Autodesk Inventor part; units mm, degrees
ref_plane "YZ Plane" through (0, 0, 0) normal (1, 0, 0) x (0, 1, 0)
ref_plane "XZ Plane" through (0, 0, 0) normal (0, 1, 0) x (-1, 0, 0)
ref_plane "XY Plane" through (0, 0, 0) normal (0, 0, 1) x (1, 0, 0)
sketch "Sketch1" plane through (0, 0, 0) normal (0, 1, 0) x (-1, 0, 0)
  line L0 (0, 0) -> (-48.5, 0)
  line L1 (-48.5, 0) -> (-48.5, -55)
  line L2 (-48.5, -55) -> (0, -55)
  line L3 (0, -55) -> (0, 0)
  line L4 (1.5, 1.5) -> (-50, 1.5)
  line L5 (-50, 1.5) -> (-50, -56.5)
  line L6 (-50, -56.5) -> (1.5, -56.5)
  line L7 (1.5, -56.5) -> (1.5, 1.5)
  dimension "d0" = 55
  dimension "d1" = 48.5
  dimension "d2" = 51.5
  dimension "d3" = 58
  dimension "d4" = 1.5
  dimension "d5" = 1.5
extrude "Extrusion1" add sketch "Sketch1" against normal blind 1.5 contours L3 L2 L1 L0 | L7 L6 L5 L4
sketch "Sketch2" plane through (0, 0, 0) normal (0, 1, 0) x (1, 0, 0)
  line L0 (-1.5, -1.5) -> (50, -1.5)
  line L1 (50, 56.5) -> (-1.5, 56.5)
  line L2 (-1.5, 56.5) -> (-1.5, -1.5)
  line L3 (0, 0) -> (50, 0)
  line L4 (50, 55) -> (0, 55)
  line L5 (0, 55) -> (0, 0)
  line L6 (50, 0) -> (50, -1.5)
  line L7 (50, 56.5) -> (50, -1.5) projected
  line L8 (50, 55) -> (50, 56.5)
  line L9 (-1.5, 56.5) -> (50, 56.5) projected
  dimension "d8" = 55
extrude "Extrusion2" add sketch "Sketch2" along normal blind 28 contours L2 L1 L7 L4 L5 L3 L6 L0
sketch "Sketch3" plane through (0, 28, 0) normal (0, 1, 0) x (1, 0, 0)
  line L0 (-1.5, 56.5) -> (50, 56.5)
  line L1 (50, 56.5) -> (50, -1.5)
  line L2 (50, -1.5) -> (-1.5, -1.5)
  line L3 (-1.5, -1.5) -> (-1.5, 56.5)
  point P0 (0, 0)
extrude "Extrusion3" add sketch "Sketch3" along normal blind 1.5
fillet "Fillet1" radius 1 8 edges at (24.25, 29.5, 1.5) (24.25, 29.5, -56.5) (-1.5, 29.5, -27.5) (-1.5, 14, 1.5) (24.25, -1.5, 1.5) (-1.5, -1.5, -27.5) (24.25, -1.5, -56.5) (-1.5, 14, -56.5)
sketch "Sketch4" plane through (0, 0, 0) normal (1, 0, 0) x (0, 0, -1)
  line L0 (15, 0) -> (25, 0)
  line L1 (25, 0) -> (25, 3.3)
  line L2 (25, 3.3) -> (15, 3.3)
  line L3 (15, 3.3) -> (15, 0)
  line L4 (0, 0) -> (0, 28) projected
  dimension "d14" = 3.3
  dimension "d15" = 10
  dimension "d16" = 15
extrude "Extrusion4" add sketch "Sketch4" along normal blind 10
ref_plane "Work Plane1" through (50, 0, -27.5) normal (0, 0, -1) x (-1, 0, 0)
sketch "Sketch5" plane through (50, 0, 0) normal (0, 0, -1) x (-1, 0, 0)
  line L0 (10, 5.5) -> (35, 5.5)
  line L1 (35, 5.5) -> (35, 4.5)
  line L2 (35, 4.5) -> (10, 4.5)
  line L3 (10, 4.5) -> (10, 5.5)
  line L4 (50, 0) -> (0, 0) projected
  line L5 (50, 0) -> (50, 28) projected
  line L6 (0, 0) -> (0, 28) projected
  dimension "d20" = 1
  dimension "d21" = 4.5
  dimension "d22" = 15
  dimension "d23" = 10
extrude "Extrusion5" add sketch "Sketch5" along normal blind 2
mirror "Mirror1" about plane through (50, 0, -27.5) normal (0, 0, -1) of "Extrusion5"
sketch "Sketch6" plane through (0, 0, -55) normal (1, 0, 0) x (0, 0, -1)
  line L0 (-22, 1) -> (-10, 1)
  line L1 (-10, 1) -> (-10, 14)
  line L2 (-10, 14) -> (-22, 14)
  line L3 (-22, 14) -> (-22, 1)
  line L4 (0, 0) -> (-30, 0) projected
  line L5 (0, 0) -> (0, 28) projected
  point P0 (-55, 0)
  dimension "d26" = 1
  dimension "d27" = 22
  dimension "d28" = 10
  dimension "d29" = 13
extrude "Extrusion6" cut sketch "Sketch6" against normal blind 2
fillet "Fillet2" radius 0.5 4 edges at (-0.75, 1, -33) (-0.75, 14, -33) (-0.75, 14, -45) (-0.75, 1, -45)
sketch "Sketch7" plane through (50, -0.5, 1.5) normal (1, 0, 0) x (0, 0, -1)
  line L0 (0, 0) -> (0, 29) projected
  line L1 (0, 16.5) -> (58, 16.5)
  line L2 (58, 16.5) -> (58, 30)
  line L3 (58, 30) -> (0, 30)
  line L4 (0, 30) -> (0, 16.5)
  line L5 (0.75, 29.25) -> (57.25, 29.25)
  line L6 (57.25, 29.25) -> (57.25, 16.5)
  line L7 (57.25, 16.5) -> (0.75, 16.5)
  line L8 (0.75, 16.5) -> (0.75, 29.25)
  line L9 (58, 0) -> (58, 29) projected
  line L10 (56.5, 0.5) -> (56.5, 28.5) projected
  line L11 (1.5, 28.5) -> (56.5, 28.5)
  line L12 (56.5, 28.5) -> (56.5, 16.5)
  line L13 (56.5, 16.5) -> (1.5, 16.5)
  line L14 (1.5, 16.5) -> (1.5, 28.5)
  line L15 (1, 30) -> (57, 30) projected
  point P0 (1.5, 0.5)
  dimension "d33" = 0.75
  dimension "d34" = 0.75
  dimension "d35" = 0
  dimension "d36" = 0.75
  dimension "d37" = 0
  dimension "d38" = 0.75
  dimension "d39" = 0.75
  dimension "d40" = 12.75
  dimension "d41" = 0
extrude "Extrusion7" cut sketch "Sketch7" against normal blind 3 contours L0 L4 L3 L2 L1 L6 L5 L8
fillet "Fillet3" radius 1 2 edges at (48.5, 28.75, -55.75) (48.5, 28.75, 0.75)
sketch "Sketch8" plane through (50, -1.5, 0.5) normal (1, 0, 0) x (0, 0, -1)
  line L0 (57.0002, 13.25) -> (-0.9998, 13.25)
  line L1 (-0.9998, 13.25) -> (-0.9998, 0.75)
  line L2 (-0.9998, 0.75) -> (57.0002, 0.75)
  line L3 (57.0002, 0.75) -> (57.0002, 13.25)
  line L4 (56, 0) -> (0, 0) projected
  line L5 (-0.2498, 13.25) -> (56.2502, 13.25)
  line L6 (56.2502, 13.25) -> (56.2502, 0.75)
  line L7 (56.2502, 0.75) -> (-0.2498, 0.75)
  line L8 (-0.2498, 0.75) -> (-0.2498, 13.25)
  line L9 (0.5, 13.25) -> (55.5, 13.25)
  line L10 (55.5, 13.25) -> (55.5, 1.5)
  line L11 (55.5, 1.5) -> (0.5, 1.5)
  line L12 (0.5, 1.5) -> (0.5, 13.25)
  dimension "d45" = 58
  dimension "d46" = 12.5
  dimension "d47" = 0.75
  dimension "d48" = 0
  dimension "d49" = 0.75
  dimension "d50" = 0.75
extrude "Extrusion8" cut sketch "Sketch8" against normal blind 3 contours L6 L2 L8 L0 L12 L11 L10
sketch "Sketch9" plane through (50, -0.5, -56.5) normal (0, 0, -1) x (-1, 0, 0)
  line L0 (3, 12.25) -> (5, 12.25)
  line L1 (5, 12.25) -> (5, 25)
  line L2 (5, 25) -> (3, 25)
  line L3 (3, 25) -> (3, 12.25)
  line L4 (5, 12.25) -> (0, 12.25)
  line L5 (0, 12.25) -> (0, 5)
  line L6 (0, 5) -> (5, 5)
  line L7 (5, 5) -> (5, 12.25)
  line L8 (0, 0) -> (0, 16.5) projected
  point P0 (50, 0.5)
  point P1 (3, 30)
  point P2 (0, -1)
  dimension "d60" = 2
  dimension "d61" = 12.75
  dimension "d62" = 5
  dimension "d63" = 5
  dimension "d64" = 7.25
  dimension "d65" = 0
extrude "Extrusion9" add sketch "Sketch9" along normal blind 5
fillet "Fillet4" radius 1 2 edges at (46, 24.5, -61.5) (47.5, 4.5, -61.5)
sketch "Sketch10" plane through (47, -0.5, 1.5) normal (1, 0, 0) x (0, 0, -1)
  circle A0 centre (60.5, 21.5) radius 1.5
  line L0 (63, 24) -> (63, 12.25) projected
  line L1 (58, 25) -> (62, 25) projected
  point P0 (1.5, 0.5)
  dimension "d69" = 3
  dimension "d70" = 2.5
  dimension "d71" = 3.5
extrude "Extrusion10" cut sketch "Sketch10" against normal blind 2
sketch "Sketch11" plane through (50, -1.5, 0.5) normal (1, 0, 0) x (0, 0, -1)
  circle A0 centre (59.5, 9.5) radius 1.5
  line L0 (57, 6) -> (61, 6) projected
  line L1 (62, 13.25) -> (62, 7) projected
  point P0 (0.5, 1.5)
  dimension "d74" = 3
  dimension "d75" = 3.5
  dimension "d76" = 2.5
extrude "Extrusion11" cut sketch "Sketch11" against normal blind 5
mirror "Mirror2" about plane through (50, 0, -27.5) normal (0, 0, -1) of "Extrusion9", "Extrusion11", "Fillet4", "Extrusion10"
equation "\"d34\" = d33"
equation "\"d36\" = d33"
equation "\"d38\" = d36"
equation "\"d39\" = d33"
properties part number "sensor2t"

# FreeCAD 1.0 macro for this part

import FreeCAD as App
import Part
import Sketcher

V = App.Vector
Q = App.Units.Quantity


def edges_at(feature, points):
    """Names of the edges that pass closest to the given points."""
    edges = feature.Shape.Edges
    near = lambda p: min(range(len(edges)), key=lambda i: edges[i].distToShape(Part.Vertex(*p))[0])
    return sorted({f"Edge{near(p) + 1}" for p in points})

doc = App.newDocument("Part")
params = doc.addObject("Spreadsheet::Sheet", "Params")
for row, (alias, value) in enumerate([
    ("sketch1_height", "58 mm"),
    ("sketch1_width", "51.5 mm"),
    ("pad1_length", "1.5 mm"),
    ("sketch2_height", "55 mm"),
    ("sketch2_width", "50 mm"),
    ("sketch2_height2", "58 mm"),
    ("sketch2_width2", "51.5 mm"),
    ("pad2_length", "28 mm"),
    ("sketch3_height", "58 mm"),
    ("sketch3_width", "51.5 mm"),
    ("pad3_length", "1.5 mm"),
    ("fillet_radius", "1 mm"),
    ("sketch4_height", "10 mm"),
    ("sketch4_width", "3.3 mm"),
    ("pad4_length", "10 mm"),
    ("sketch5_height", "1 mm"),
    ("sketch5_width", "25 mm"),
    ("pad5_length", "2 mm"),
    ("sketch6_width", "13 mm"),
    ("sketch6_height", "12 mm"),
    ("pocket1_length", "2 mm"),
    ("fillet2_radius", "0.5 mm"),
    ("sketch7_width", "12.75 mm"),
    ("sketch7_height", "0.75 mm"),
    ("sketch7_height2", "58 mm"),
    ("pocket2_length", "3 mm"),
    ("fillet3_radius", "1 mm"),
    ("sketch8_width", "12.5 mm"),
    ("sketch8_height", "55 mm"),
    ("pocket3_length", "3 mm"),
    ("sketch9_width", "5 mm"),
    ("sketch9_width2", "2 mm"),
    ("sketch9_height", "12.75 mm"),
    ("sketch9_height2", "7.25 mm"),
    ("pad6_length", "5 mm"),
    ("fillet4_radius", "1 mm"),
    ("sketch10_diameter", "3 mm"),
    ("pocket4_length", "2 mm"),
    ("sketch11_diameter", "3 mm"),
    ("pocket5_length", "5 mm"),
], start=1):
    params.set(f"A{row}", alias)
    params.set(f"B{row}", "=" + value)
    params.setAlias(f"B{row}", alias)

body = doc.addObject("PartDesign::Body", "Body")

sketch1 = body.newObject("Sketcher::SketchObject", "Sketch")
sketch1.AttachmentSupport = (doc.getObject("XZ_Plane"), [""])
sketch1.MapMode = "FlatFace"
sketch1.addGeometry([
    Part.LineSegment(V(-2, -56, 0), V(-2, 2, 0)),
    Part.LineSegment(V(-2, 2, 0), V(50, 2, 0)),
    Part.LineSegment(V(50, 2, 0), V(50, -56, 0)),
    Part.LineSegment(V(50, -56, 0), V(-2, -56, 0)),
], False)
sketch1.addConstraint([
    Sketcher.Constraint("Coincident", 0, 2, 1, 1),
    Sketcher.Constraint("Coincident", 1, 2, 2, 1),
    Sketcher.Constraint("Coincident", 2, 2, 3, 1),
    Sketcher.Constraint("Coincident", 3, 2, 0, 1),
    Sketcher.Constraint("Vertical", 0),
    Sketcher.Constraint("Horizontal", 1),
    Sketcher.Constraint("Vertical", 2),
    Sketcher.Constraint("Horizontal", 3),
    Sketcher.Constraint("DistanceY", 0, 1, 0, 2, Q("58 mm")),
    Sketcher.Constraint("DistanceX", 1, 1, 1, 2, Q("51.5 mm")),
    Sketcher.Constraint("DistanceX", 0, 2, -1, 1, Q("1.5 mm")),
    Sketcher.Constraint("DistanceY", -1, 1, 0, 2, Q("1.5 mm")),
])
sketch1.setExpression("Constraints[8]", "Params.sketch1_height")
sketch1.setExpression("Constraints[9]", "Params.sketch1_width")
pad1 = body.newObject("PartDesign::Pad", "Pad")
pad1.Profile = sketch1
pad1.setExpression("Length", "Params.pad1_length")

sketch2 = body.newObject("Sketcher::SketchObject", "Sketch001")
sketch2.AttachmentSupport = (doc.getObject("XZ_Plane"), [""])
sketch2.MapMode = "FlatFace"
sketch2.addGeometry([
    Part.LineSegment(V(-1.5, -56.5, 0), V(-1.5, 1.5, 0)),
    Part.LineSegment(V(-1.5, 1.5, 0), V(50, 1.5, 0)),
    Part.LineSegment(V(50, 1.5, 0), V(50, 0, 0)),
    Part.LineSegment(V(50, 0, 0), V(0, 0, 0)),
    Part.LineSegment(V(0, 0, 0), V(0, -55, 0)),
    Part.LineSegment(V(0, -55, 0), V(50, -55, 0)),
    Part.LineSegment(V(50, -55, 0), V(50, -56.5, 0)),
    Part.LineSegment(V(50, -56.5, 0), V(-1.5, -56.5, 0)),
], False)
sketch2.addConstraint([
    Sketcher.Constraint("Coincident", 0, 2, 1, 1),
    Sketcher.Constraint("Coincident", 1, 2, 2, 1),
    Sketcher.Constraint("Coincident", 2, 2, 3, 1),
    Sketcher.Constraint("Coincident", 3, 2, 4, 1),
    Sketcher.Constraint("Coincident", 4, 2, 5, 1),
    Sketcher.Constraint("Coincident", 5, 2, 6, 1),
    Sketcher.Constraint("Coincident", 6, 2, 7, 1),
    Sketcher.Constraint("Coincident", 7, 2, 0, 1),
    Sketcher.Constraint("Vertical", 0),
    Sketcher.Constraint("Horizontal", 1),
    Sketcher.Constraint("Vertical", 2),
    Sketcher.Constraint("Horizontal", 3),
    Sketcher.Constraint("Vertical", 4),
    Sketcher.Constraint("Horizontal", 5),
    Sketcher.Constraint("Vertical", 6),
    Sketcher.Constraint("Horizontal", 7),
    Sketcher.Constraint("Coincident", 3, 2, -1, 1),
    Sketcher.Constraint("Vertical", 2, 2, 5, 2),
    Sketcher.Constraint("Equal", 2, 6),
    Sketcher.Constraint("DistanceY", 4, 2, 4, 1, Q("55 mm")),
    Sketcher.Constraint("DistanceX", 3, 2, 3, 1, Q("50 mm")),
    Sketcher.Constraint("DistanceY", 0, 1, 0, 2, Q("58 mm")),
    Sketcher.Constraint("DistanceX", 1, 1, 1, 2, Q("51.5 mm")),
])
sketch2.setExpression("Constraints[19]", "Params.sketch2_height")
sketch2.setExpression("Constraints[20]", "Params.sketch2_width")
sketch2.setExpression("Constraints[21]", "Params.sketch2_height2")
sketch2.setExpression("Constraints[22]", "Params.sketch2_width2")
pad2 = body.newObject("PartDesign::Pad", "Pad001")
pad2.Profile = sketch2
pad2.setExpression("Length", "Params.pad2_length")
pad2.Reversed = True

sketch3 = body.newObject("Sketcher::SketchObject", "Sketch002")
sketch3.AttachmentSupport = (doc.getObject("XZ_Plane"), [""])
sketch3.MapMode = "FlatFace"
sketch3.AttachmentOffset = App.Placement(V(0, 0, -28), App.Rotation())
sketch3.addGeometry([
    Part.LineSegment(V(50, -56, 0), V(-2, -56, 0)),
    Part.LineSegment(V(-2, -56, 0), V(-2, 2, 0)),
    Part.LineSegment(V(-2, 2, 0), V(50, 2, 0)),
    Part.LineSegment(V(50, 2, 0), V(50, -56, 0)),
], False)
sketch3.addConstraint([
    Sketcher.Constraint("Coincident", 0, 2, 1, 1),
    Sketcher.Constraint("Coincident", 1, 2, 2, 1),
    Sketcher.Constraint("Coincident", 2, 2, 3, 1),
    Sketcher.Constraint("Coincident", 3, 2, 0, 1),
    Sketcher.Constraint("Horizontal", 0),
    Sketcher.Constraint("Vertical", 1),
    Sketcher.Constraint("Horizontal", 2),
    Sketcher.Constraint("Vertical", 3),
    Sketcher.Constraint("DistanceY", 1, 1, 1, 2, Q("58 mm")),
    Sketcher.Constraint("DistanceX", 0, 2, 0, 1, Q("51.5 mm")),
    Sketcher.Constraint("DistanceX", -1, 1, 2, 2, Q("50 mm")),
    Sketcher.Constraint("DistanceY", 0, 2, -1, 1, Q("56.5 mm")),
])
sketch3.setExpression("Constraints[8]", "Params.sketch3_height")
sketch3.setExpression("Constraints[9]", "Params.sketch3_width")
pad3 = body.newObject("PartDesign::Pad", "Pad002")
pad3.Profile = sketch3
pad3.setExpression("Length", "Params.pad3_length")
pad3.Reversed = True
doc.recompute()

fillet = body.newObject("PartDesign::Fillet", "Fillet")
fillet.Base = (pad3, edges_at(pad3, [
    (24.25, 29.5, 1.5),
    (24.25, 29.5, -56.5),
    (-1.5, 29.5, -27.5),
    (-1.5, 14, 1.5),
    (24.25, -1.5, 1.5),
    (-1.5, -1.5, -27.5),
    (24.25, -1.5, -56.5),
    (-1.5, 14, -56.5),
]))
fillet.setExpression("Radius", "Params.fillet_radius")

sketch4 = body.newObject("Sketcher::SketchObject", "Sketch003")
sketch4.AttachmentSupport = (doc.getObject("YZ_Plane"), [""])
sketch4.MapMode = "FlatFace"
sketch4.addGeometry([
    Part.LineSegment(V(3.3, -15, 0), V(0, -15, 0)),
    Part.LineSegment(V(0, -15, 0), V(0, -25, 0)),
    Part.LineSegment(V(0, -25, 0), V(3.3, -25, 0)),
    Part.LineSegment(V(3.3, -25, 0), V(3.3, -15, 0)),
], False)
sketch4.addConstraint([
    Sketcher.Constraint("Coincident", 0, 2, 1, 1),
    Sketcher.Constraint("Coincident", 1, 2, 2, 1),
    Sketcher.Constraint("Coincident", 2, 2, 3, 1),
    Sketcher.Constraint("Coincident", 3, 2, 0, 1),
    Sketcher.Constraint("Horizontal", 0),
    Sketcher.Constraint("Vertical", 1),
    Sketcher.Constraint("Horizontal", 2),
    Sketcher.Constraint("Vertical", 3),
    Sketcher.Constraint("PointOnObject", 0, 2, -2),
    Sketcher.Constraint("DistanceY", 1, 2, 1, 1, Q("10 mm")),
    Sketcher.Constraint("DistanceX", 0, 2, 0, 1, Q("3.3 mm")),
    Sketcher.Constraint("DistanceY", 0, 2, -1, 1, Q("15 mm")),
])
sketch4.setExpression("Constraints[9]", "Params.sketch4_height")
sketch4.setExpression("Constraints[10]", "Params.sketch4_width")
pad4 = body.newObject("PartDesign::Pad", "Pad003")
pad4.Profile = sketch4
pad4.setExpression("Length", "Params.pad4_length")

sketch5 = body.newObject("Sketcher::SketchObject", "Sketch004")
sketch5.AttachmentSupport = (doc.getObject("XY_Plane"), [""])
sketch5.MapMode = "FlatFace"
sketch5.addGeometry([
    Part.LineSegment(V(15, 5.5, 0), V(40, 5.5, 0)),
    Part.LineSegment(V(40, 5.5, 0), V(40, 4.5, 0)),
    Part.LineSegment(V(40, 4.5, 0), V(15, 4.5, 0)),
    Part.LineSegment(V(15, 4.5, 0), V(15, 5.5, 0)),
], False)
sketch5.addConstraint([
    Sketcher.Constraint("Coincident", 0, 2, 1, 1),
    Sketcher.Constraint("Coincident", 1, 2, 2, 1),
    Sketcher.Constraint("Coincident", 2, 2, 3, 1),
    Sketcher.Constraint("Coincident", 3, 2, 0, 1),
    Sketcher.Constraint("Horizontal", 0),
    Sketcher.Constraint("Vertical", 1),
    Sketcher.Constraint("Horizontal", 2),
    Sketcher.Constraint("Vertical", 3),
    Sketcher.Constraint("DistanceY", 1, 2, 1, 1, Q("1 mm")),
    Sketcher.Constraint("DistanceX", -1, 1, 2, 2, Q("15 mm")),
    Sketcher.Constraint("DistanceY", -1, 1, 1, 2, Q("4.5 mm")),
    Sketcher.Constraint("DistanceX", 0, 1, 0, 2, Q("25 mm")),
])
sketch5.setExpression("Constraints[8]", "Params.sketch5_height")
sketch5.setExpression("Constraints[11]", "Params.sketch5_width")
pad5 = body.newObject("PartDesign::Pad", "Pad004")
pad5.Profile = sketch5
pad5.setExpression("Length", "Params.pad5_length")
pad5.Reversed = True
doc.recompute()

datumplane = body.newObject("PartDesign::Plane", "DatumPlane")
datumplane.AttachmentSupport = (doc.getObject("XY_Plane"), [""])
datumplane.MapMode = "FlatFace"
datumplane.AttachmentOffset = App.Placement(V(0, 0, -27.5), App.Rotation())
mirrored = body.newObject("PartDesign::Mirrored", "Mirrored")
mirrored.Originals = [pad5]
mirrored.MirrorPlane = (datumplane, [""])
body.Tip = mirrored

sketch6 = body.newObject("Sketcher::SketchObject", "Sketch005")
sketch6.AttachmentSupport = (doc.getObject("YZ_Plane"), [""])
sketch6.MapMode = "FlatFace"
sketch6.addGeometry([
    Part.LineSegment(V(14, -33, 0), V(1, -33, 0)),
    Part.LineSegment(V(1, -33, 0), V(1, -45, 0)),
    Part.LineSegment(V(1, -45, 0), V(14, -45, 0)),
    Part.LineSegment(V(14, -45, 0), V(14, -33, 0)),
], False)
sketch6.addConstraint([
    Sketcher.Constraint("Coincident", 0, 2, 1, 1),
    Sketcher.Constraint("Coincident", 1, 2, 2, 1),
    Sketcher.Constraint("Coincident", 2, 2, 3, 1),
    Sketcher.Constraint("Coincident", 3, 2, 0, 1),
    Sketcher.Constraint("Horizontal", 0),
    Sketcher.Constraint("Vertical", 1),
    Sketcher.Constraint("Horizontal", 2),
    Sketcher.Constraint("Vertical", 3),
    Sketcher.Constraint("DistanceX", 0, 2, 0, 1, Q("13 mm")),
    Sketcher.Constraint("DistanceX", -1, 1, 0, 2, Q("1 mm")),
    Sketcher.Constraint("DistanceY", 1, 2, 1, 1, Q("12 mm")),
    Sketcher.Constraint("DistanceY", 0, 2, -1, 1, Q("33 mm")),
])
sketch6.setExpression("Constraints[8]", "Params.sketch6_width")
sketch6.setExpression("Constraints[10]", "Params.sketch6_height")
pocket1 = body.newObject("PartDesign::Pocket", "Pocket")
pocket1.Profile = sketch6
pocket1.setExpression("Length", "Params.pocket1_length")
doc.recompute()

fillet2 = body.newObject("PartDesign::Fillet", "Fillet001")
fillet2.Base = (pocket1, edges_at(pocket1, [
    (-0.75, 1, -33),
    (-0.75, 14, -33),
    (-0.75, 14, -45),
    (-0.75, 1, -45),
]))
fillet2.setExpression("Radius", "Params.fillet2_radius")

sketch7 = body.newObject("Sketcher::SketchObject", "Sketch006")
sketch7.AttachmentSupport = (doc.getObject("YZ_Plane"), [""])
sketch7.MapMode = "FlatFace"
sketch7.AttachmentOffset = App.Placement(V(0, 0, 50), App.Rotation())
sketch7.addGeometry([
    Part.LineSegment(V(29.5, 1.5, 0), V(16, 1.5, 0)),
    Part.LineSegment(V(16, 1.5, 0), V(16, 0.8, 0)),
    Part.LineSegment(V(16, 0.8, 0), V(28.8, 0.8, 0)),
    Part.LineSegment(V(28.8, 0.8, 0), V(28.8, -55.8, 0)),
    Part.LineSegment(V(28.8, -55.8, 0), V(16, -55.8, 0)),
    Part.LineSegment(V(16, -55.8, 0), V(16, -56.5, 0)),
    Part.LineSegment(V(16, -56.5, 0), V(29.5, -56.5, 0)),
    Part.LineSegment(V(29.5, -56.5, 0), V(29.5, 1.5, 0)),
], False)
sketch7.addConstraint([
    Sketcher.Constraint("Coincident", 0, 2, 1, 1),
    Sketcher.Constraint("Coincident", 1, 2, 2, 1),
    Sketcher.Constraint("Coincident", 2, 2, 3, 1),
    Sketcher.Constraint("Coincident", 3, 2, 4, 1),
    Sketcher.Constraint("Coincident", 4, 2, 5, 1),
    Sketcher.Constraint("Coincident", 5, 2, 6, 1),
    Sketcher.Constraint("Coincident", 6, 2, 7, 1),
    Sketcher.Constraint("Coincident", 7, 2, 0, 1),
    Sketcher.Constraint("Horizontal", 0),
    Sketcher.Constraint("Vertical", 1),
    Sketcher.Constraint("Horizontal", 2),
    Sketcher.Constraint("Vertical", 3),
    Sketcher.Constraint("Horizontal", 4),
    Sketcher.Constraint("Vertical", 5),
    Sketcher.Constraint("Horizontal", 6),
    Sketcher.Constraint("Vertical", 7),
    Sketcher.Constraint("Vertical", 1, 2, 4, 2),
    Sketcher.Constraint("Equal", 1, 5),
    Sketcher.Constraint("DistanceX", 2, 1, 2, 2, Q("12.75 mm")),
    Sketcher.Constraint("DistanceY", 1, 2, 1, 1, Q("0.75 mm")),
    Sketcher.Constraint("DistanceY", 7, 1, 7, 2, Q("58 mm")),
    Sketcher.Constraint("DistanceY", -1, 1, 1, 2, Q("0.75 mm")),
    Sketcher.Constraint("DistanceX", 3, 2, 6, 2, Q("0.75 mm")),
    Sketcher.Constraint("DistanceX", -1, 1, 0, 2, Q("16 mm")),
])
sketch7.setExpression("Constraints[18]", "Params.sketch7_width")
sketch7.setExpression("Constraints[19]", "Params.sketch7_height")
sketch7.setExpression("Constraints[20]", "Params.sketch7_height2")
pocket2 = body.newObject("PartDesign::Pocket", "Pocket001")
pocket2.Profile = sketch7
pocket2.setExpression("Length", "Params.pocket2_length")
doc.recompute()

fillet3 = body.newObject("PartDesign::Fillet", "Fillet002")
fillet3.Base = (pocket2, edges_at(pocket2, [(48.5, 28.75, -55.75), (48.5, 28.75, 0.75)]))
fillet3.setExpression("Radius", "Params.fillet3_radius")

sketch8 = body.newObject("Sketcher::SketchObject", "Sketch007")
sketch8.AttachmentSupport = (doc.getObject("YZ_Plane"), [""])
sketch8.MapMode = "FlatFace"
sketch8.AttachmentOffset = App.Placement(V(0, 0, 50), App.Rotation())
sketch8.addGeometry([
    Part.LineSegment(V(-0.8, -55.8, 0), V(11.8, -55.8, 0)),
    Part.LineSegment(V(11.8, -55.8, 0), V(11.8, -55, 0)),
    Part.LineSegment(V(11.8, -55, 0), V(0, -55, 0)),
    Part.LineSegment(V(0, -55, 0), V(0, 0, 0)),
    Part.LineSegment(V(0, 0, 0), V(11.8, 0, 0)),
    Part.LineSegment(V(11.8, 0, 0), V(11.8, 0.7, 0)),
    Part.LineSegment(V(11.8, 0.7, 0), V(-0.8, 0.7, 0)),
    Part.LineSegment(V(-0.8, 0.7, 0), V(-0.8, -55.8, 0)),
], False)
sketch8.addConstraint([
    Sketcher.Constraint("Coincident", 0, 2, 1, 1),
    Sketcher.Constraint("Coincident", 1, 2, 2, 1),
    Sketcher.Constraint("Coincident", 2, 2, 3, 1),
    Sketcher.Constraint("Coincident", 3, 2, 4, 1),
    Sketcher.Constraint("Coincident", 4, 2, 5, 1),
    Sketcher.Constraint("Coincident", 5, 2, 6, 1),
    Sketcher.Constraint("Coincident", 6, 2, 7, 1),
    Sketcher.Constraint("Coincident", 7, 2, 0, 1),
    Sketcher.Constraint("Horizontal", 0),
    Sketcher.Constraint("Vertical", 1),
    Sketcher.Constraint("Horizontal", 2),
    Sketcher.Constraint("Vertical", 3),
    Sketcher.Constraint("Horizontal", 4),
    Sketcher.Constraint("Vertical", 5),
    Sketcher.Constraint("Horizontal", 6),
    Sketcher.Constraint("Vertical", 7),
    Sketcher.Constraint("Coincident", 3, 2, -1, 1),
    Sketcher.Constraint("Vertical", 1, 2, 4, 2),
    Sketcher.Constraint("DistanceX", 0, 1, 0, 2, Q("12.5 mm")),
    Sketcher.Constraint("DistanceY", 3, 1, 3, 2, Q("55 mm")),
    Sketcher.Constraint("DistanceX", 6, 2, -1, 1, Q("0.75 mm")),
    Sketcher.Constraint("DistanceY", 1, 1, 1, 2, Q("0.7502 mm")),
    Sketcher.Constraint("DistanceY", 5, 1, 5, 2, Q("0.7498 mm")),
])
sketch8.setExpression("Constraints[18]", "Params.sketch8_width")
sketch8.setExpression("Constraints[19]", "Params.sketch8_height")
pocket3 = body.newObject("PartDesign::Pocket", "Pocket002")
pocket3.Profile = sketch8
pocket3.setExpression("Length", "Params.pocket3_length")

sketch9 = body.newObject("Sketcher::SketchObject", "Sketch008")
sketch9.AttachmentSupport = (doc.getObject("XY_Plane"), [""])
sketch9.MapMode = "FlatFace"
sketch9.AttachmentOffset = App.Placement(V(0, 0, -56.5), App.Rotation())
sketch9.addGeometry([
    Part.LineSegment(V(47, 24.5, 0), V(47, 11.8, 0)),
    Part.LineSegment(V(47, 11.8, 0), V(50, 11.8, 0)),
    Part.LineSegment(V(50, 11.8, 0), V(50, 4.5, 0)),
    Part.LineSegment(V(50, 4.5, 0), V(45, 4.5, 0)),
    Part.LineSegment(V(45, 4.5, 0), V(45, 24.5, 0)),
    Part.LineSegment(V(45, 24.5, 0), V(47, 24.5, 0)),
], False)
sketch9.addConstraint([
    Sketcher.Constraint("Coincident", 0, 2, 1, 1),
    Sketcher.Constraint("Coincident", 1, 2, 2, 1),
    Sketcher.Constraint("Coincident", 2, 2, 3, 1),
    Sketcher.Constraint("Coincident", 3, 2, 4, 1),
    Sketcher.Constraint("Coincident", 4, 2, 5, 1),
    Sketcher.Constraint("Coincident", 5, 2, 0, 1),
    Sketcher.Constraint("Vertical", 0),
    Sketcher.Constraint("Horizontal", 1),
    Sketcher.Constraint("Vertical", 2),
    Sketcher.Constraint("Horizontal", 3),
    Sketcher.Constraint("Vertical", 4),
    Sketcher.Constraint("Horizontal", 5),
    Sketcher.Constraint("DistanceX", 3, 2, 3, 1, Q("5 mm")),
    Sketcher.Constraint("DistanceX", 5, 1, 5, 2, Q("2 mm")),
    Sketcher.Constraint("DistanceY", 0, 2, 0, 1, Q("12.75 mm")),
    Sketcher.Constraint("DistanceY", 2, 2, 2, 1, Q("7.25 mm")),
    Sketcher.Constraint("DistanceX", -1, 1, 0, 2, Q("47 mm")),
    Sketcher.Constraint("DistanceY", -1, 1, 2, 2, Q("4.5 mm")),
])
sketch9.setExpression("Constraints[12]", "Params.sketch9_width")
sketch9.setExpression("Constraints[13]", "Params.sketch9_width2")
sketch9.setExpression("Constraints[14]", "Params.sketch9_height")
sketch9.setExpression("Constraints[15]", "Params.sketch9_height2")
pad6 = body.newObject("PartDesign::Pad", "Pad005")
pad6.Profile = sketch9
pad6.setExpression("Length", "Params.pad6_length")
pad6.Reversed = True
doc.recompute()

fillet4 = body.newObject("PartDesign::Fillet", "Fillet003")
fillet4.Base = (pad6, edges_at(pad6, [(46, 24.5, -61.5), (47.5, 4.5, -61.5)]))
fillet4.setExpression("Radius", "Params.fillet4_radius")

sketch10 = body.newObject("Sketcher::SketchObject", "Sketch009")
sketch10.AttachmentSupport = (doc.getObject("YZ_Plane"), [""])
sketch10.MapMode = "FlatFace"
sketch10.AttachmentOffset = App.Placement(V(0, 0, 47), App.Rotation())
sketch10.addGeometry(Part.Circle(V(21, -59, 0), V(0, 0, 1), 1.5), False)
sketch10.addConstraint([
    Sketcher.Constraint("Diameter", 0, Q("3 mm")),
    Sketcher.Constraint("DistanceX", -1, 1, 0, 3, Q("21 mm")),
    Sketcher.Constraint("DistanceY", 0, 3, -1, 1, Q("59 mm")),
])
sketch10.setExpression("Constraints[0]", "Params.sketch10_diameter")
pocket4 = body.newObject("PartDesign::Pocket", "Pocket003")
pocket4.Profile = sketch10
pocket4.setExpression("Length", "Params.pocket4_length")

sketch11 = body.newObject("Sketcher::SketchObject", "Sketch010")
sketch11.AttachmentSupport = (doc.getObject("YZ_Plane"), [""])
sketch11.MapMode = "FlatFace"
sketch11.AttachmentOffset = App.Placement(V(0, 0, 50), App.Rotation())
sketch11.addGeometry(Part.Circle(V(8, -59, 0), V(0, 0, 1), 1.5), False)
sketch11.addConstraint([
    Sketcher.Constraint("Diameter", 0, Q("3 mm")),
    Sketcher.Constraint("DistanceX", -1, 1, 0, 3, Q("8 mm")),
    Sketcher.Constraint("DistanceY", 0, 3, -1, 1, Q("59 mm")),
])
sketch11.setExpression("Constraints[0]", "Params.sketch11_diameter")
pocket5 = body.newObject("PartDesign::Pocket", "Pocket004")
pocket5.Profile = sketch11
pocket5.setExpression("Length", "Params.pocket5_length")
doc.recompute()

datumplane2 = body.newObject("PartDesign::Plane", "DatumPlane001")
datumplane2.AttachmentSupport = (doc.getObject("XY_Plane"), [""])
datumplane2.MapMode = "FlatFace"
datumplane2.AttachmentOffset = App.Placement(V(0, 0, -27.5), App.Rotation())
mirrored2 = body.newObject("PartDesign::Mirrored", "Mirrored001")
mirrored2.Originals = [pad6, pocket5, fillet4, pocket4]
mirrored2.MirrorPlane = (datumplane2, [""])
body.Tip = mirrored2

doc.recompute()
